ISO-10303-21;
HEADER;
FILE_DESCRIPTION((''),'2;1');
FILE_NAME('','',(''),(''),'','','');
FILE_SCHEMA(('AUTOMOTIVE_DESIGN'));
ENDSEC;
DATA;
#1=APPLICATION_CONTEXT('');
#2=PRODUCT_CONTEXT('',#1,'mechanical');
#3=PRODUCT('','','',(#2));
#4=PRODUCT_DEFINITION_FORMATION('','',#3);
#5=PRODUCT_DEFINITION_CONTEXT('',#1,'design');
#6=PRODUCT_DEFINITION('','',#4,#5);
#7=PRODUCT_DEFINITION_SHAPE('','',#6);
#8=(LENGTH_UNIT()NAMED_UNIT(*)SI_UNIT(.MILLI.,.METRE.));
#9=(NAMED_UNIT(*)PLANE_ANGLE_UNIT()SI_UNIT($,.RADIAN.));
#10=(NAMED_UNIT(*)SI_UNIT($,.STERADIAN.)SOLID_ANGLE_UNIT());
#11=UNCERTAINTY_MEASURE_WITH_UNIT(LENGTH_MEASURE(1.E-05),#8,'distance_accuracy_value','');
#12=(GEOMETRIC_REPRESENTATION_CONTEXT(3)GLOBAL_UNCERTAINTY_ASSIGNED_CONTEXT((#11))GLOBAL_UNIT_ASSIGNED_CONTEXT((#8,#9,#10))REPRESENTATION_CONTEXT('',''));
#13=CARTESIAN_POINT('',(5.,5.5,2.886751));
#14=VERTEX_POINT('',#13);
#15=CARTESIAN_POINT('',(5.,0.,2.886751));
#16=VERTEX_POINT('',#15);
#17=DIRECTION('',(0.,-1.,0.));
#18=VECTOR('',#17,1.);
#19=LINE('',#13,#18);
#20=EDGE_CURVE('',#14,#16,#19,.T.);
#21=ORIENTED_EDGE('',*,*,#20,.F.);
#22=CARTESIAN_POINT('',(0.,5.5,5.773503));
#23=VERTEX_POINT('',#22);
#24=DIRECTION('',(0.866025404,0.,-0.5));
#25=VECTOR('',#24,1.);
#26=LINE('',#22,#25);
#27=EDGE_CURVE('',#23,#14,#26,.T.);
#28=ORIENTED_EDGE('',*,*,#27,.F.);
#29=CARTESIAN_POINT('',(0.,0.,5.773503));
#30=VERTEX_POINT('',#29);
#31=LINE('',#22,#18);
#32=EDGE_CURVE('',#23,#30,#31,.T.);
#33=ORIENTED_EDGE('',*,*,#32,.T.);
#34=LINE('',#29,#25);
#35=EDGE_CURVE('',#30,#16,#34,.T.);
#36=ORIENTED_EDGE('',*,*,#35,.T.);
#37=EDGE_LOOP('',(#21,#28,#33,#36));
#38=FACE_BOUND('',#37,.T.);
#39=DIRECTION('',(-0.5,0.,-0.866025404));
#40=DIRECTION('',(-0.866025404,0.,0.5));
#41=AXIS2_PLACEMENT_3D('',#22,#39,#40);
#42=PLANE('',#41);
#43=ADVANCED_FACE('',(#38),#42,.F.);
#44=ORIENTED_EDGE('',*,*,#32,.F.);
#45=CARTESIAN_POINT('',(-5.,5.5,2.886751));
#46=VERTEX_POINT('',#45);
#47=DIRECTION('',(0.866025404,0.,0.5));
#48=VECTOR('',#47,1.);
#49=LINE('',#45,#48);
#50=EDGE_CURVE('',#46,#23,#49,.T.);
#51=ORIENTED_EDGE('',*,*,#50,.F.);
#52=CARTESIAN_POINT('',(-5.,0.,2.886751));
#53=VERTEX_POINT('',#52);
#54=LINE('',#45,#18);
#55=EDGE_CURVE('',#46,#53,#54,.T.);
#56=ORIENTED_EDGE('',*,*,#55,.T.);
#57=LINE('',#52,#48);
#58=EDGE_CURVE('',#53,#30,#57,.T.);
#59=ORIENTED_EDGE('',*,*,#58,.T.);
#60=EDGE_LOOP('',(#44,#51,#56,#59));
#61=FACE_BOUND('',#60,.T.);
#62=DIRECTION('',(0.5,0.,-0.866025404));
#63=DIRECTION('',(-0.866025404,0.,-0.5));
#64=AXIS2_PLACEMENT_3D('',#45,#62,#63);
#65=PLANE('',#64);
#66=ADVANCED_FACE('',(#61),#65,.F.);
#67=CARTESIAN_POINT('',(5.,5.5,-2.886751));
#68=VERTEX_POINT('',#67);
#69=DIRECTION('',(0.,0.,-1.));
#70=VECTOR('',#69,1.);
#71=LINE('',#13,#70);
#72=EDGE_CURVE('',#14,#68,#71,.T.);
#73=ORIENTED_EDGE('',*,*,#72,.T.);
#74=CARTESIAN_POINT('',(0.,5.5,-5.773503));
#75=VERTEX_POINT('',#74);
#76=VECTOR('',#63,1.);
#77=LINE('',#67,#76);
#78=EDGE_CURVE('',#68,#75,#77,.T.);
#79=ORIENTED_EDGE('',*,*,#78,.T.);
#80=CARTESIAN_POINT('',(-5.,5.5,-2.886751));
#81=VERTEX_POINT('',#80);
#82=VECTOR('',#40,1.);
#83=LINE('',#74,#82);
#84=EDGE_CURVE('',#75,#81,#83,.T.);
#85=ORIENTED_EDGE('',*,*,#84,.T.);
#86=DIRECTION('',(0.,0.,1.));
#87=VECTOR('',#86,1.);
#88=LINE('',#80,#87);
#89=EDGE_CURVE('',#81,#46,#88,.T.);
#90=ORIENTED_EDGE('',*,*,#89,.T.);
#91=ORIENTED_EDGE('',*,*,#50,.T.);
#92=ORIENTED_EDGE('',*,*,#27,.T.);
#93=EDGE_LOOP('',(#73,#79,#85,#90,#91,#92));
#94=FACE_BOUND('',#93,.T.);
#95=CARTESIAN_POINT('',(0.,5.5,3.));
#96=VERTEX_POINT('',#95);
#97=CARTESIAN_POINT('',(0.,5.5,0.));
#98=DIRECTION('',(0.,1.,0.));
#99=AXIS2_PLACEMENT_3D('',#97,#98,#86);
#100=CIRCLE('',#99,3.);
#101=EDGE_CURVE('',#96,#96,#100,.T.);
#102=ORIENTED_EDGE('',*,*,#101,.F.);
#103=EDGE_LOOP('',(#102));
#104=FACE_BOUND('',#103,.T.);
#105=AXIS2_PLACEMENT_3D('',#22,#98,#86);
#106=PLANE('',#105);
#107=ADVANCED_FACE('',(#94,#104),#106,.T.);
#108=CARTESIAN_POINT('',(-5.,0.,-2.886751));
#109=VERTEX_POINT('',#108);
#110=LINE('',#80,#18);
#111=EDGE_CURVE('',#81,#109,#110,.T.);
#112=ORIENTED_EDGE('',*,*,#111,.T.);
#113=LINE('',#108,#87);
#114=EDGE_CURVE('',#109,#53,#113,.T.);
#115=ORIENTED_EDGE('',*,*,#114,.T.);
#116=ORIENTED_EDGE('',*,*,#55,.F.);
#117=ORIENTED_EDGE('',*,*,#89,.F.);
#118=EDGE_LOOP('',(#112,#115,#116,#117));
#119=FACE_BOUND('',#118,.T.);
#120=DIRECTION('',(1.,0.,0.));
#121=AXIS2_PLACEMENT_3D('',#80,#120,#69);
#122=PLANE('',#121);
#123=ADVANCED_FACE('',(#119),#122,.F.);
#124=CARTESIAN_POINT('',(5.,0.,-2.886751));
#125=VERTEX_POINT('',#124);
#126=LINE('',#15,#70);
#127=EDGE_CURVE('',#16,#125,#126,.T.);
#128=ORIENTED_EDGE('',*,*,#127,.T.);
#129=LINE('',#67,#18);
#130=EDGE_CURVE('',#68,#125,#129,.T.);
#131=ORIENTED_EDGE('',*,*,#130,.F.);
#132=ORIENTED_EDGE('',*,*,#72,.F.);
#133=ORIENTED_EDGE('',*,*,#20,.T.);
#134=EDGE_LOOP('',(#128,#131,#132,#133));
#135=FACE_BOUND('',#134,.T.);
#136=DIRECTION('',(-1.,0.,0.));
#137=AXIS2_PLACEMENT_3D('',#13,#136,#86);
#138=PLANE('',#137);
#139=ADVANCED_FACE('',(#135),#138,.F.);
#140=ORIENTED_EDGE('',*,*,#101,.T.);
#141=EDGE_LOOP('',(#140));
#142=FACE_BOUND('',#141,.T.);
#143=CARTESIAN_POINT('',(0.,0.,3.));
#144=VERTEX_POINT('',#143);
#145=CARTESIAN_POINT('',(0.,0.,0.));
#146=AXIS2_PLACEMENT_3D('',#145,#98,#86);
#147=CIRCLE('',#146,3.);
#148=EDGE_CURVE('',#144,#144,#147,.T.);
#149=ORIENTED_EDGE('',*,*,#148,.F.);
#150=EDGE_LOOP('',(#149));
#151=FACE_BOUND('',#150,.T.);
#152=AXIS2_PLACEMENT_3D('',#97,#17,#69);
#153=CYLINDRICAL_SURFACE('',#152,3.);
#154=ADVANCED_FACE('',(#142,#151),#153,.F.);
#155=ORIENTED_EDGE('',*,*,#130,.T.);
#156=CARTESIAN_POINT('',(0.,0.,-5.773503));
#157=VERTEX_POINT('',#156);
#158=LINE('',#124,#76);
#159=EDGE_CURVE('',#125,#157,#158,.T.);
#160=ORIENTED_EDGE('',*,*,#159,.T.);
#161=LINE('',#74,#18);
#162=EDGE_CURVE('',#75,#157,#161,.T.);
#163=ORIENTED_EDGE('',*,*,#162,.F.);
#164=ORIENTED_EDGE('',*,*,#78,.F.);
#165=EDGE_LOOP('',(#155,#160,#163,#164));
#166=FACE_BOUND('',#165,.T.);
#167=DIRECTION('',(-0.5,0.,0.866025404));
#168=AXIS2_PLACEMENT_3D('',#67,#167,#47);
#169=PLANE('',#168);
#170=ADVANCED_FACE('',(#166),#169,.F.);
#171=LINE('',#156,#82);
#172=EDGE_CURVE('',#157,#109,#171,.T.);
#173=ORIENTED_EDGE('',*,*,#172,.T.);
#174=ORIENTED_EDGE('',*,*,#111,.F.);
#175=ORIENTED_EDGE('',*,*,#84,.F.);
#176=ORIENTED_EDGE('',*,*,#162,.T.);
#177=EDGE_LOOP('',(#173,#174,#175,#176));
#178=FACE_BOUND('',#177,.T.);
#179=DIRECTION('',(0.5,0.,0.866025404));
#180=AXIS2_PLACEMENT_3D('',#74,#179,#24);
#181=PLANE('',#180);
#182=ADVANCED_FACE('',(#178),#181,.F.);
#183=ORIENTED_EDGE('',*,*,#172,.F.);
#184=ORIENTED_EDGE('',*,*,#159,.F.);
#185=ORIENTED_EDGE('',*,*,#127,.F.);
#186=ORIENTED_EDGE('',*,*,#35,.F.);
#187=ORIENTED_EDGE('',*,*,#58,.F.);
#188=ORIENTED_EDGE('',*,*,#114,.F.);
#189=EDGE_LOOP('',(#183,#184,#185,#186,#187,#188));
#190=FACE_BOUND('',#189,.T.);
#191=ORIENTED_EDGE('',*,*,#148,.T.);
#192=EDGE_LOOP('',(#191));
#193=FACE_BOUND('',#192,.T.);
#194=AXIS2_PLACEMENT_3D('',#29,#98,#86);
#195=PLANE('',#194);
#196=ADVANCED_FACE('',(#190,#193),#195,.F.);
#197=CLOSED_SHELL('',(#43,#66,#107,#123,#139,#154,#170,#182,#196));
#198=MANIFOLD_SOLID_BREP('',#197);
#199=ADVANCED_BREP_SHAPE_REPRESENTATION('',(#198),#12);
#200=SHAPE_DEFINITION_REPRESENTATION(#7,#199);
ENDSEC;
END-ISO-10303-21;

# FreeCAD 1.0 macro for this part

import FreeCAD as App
import Part
import Sketcher

V = App.Vector
Q = App.Units.Quantity


def add_polygon(sketch, points):
    """Adds a closed chain of lines whose ends are joined by coincident constraints."""
    first, n = sketch.GeometryCount, len(points)
    for a, b in zip(points, points[1:] + points[:1]):
        sketch.addGeometry(Part.LineSegment(App.Vector(*a, 0), App.Vector(*b, 0)), False)
    for i in range(n):
        sketch.addConstraint(Sketcher.Constraint("Coincident", first + i, 2, first + (i + 1) % n, 1))

doc = App.newDocument("Part")
body = doc.addObject("PartDesign::Body", "Body")

sketch1 = doc.addObject("Sketcher::SketchObject", "Sketch")
body.addObject(sketch1)
sketch1.AttachmentSupport = (doc.XZ_Plane, [""])
sketch1.MapMode = "FlatFace"
add_polygon(sketch1, [(0, 5.8), (5, 2.9), (5, -2.9), (0, -5.8), (-5, -2.9), (-5, 2.9)])
sketch1.addGeometry(Part.Circle(V(0, 0, 0), V(0, 0, 1), 3), False)
sketch1.addConstraint([
    Sketcher.Constraint("Vertical", 1),
    Sketcher.Constraint("Vertical", 4),
    Sketcher.Constraint("Coincident", 6, 3, -1, 1),
    Sketcher.Constraint("Symmetric", 0, 2, 3, 2, -1, 1),
    Sketcher.Constraint("Symmetric", 2, 2, 5, 2, -1, 1),
    Sketcher.Constraint("PointOnObject", 2, 2, -2),
    Sketcher.Constraint("Parallel", 2, 5),
    Sketcher.Constraint("Horizontal", 1, 2, 3, 2),
    Sketcher.Constraint("Diameter", 6, Q("6 mm")),
    Sketcher.Constraint("Angle", 0, Q("-30 deg")),
    Sketcher.Constraint("DistanceX", -1, 1, 0, 2, Q("5 mm")),
    Sketcher.Constraint("DistanceY", 1, 2, 1, 1, Q("5.773503 mm")),
])
pad1 = doc.addObject("PartDesign::Pad", "Pad")
body.addObject(pad1)
pad1.Profile = sketch1
pad1.Length = 5.5
pad1.Reversed = True

doc.recompute()
